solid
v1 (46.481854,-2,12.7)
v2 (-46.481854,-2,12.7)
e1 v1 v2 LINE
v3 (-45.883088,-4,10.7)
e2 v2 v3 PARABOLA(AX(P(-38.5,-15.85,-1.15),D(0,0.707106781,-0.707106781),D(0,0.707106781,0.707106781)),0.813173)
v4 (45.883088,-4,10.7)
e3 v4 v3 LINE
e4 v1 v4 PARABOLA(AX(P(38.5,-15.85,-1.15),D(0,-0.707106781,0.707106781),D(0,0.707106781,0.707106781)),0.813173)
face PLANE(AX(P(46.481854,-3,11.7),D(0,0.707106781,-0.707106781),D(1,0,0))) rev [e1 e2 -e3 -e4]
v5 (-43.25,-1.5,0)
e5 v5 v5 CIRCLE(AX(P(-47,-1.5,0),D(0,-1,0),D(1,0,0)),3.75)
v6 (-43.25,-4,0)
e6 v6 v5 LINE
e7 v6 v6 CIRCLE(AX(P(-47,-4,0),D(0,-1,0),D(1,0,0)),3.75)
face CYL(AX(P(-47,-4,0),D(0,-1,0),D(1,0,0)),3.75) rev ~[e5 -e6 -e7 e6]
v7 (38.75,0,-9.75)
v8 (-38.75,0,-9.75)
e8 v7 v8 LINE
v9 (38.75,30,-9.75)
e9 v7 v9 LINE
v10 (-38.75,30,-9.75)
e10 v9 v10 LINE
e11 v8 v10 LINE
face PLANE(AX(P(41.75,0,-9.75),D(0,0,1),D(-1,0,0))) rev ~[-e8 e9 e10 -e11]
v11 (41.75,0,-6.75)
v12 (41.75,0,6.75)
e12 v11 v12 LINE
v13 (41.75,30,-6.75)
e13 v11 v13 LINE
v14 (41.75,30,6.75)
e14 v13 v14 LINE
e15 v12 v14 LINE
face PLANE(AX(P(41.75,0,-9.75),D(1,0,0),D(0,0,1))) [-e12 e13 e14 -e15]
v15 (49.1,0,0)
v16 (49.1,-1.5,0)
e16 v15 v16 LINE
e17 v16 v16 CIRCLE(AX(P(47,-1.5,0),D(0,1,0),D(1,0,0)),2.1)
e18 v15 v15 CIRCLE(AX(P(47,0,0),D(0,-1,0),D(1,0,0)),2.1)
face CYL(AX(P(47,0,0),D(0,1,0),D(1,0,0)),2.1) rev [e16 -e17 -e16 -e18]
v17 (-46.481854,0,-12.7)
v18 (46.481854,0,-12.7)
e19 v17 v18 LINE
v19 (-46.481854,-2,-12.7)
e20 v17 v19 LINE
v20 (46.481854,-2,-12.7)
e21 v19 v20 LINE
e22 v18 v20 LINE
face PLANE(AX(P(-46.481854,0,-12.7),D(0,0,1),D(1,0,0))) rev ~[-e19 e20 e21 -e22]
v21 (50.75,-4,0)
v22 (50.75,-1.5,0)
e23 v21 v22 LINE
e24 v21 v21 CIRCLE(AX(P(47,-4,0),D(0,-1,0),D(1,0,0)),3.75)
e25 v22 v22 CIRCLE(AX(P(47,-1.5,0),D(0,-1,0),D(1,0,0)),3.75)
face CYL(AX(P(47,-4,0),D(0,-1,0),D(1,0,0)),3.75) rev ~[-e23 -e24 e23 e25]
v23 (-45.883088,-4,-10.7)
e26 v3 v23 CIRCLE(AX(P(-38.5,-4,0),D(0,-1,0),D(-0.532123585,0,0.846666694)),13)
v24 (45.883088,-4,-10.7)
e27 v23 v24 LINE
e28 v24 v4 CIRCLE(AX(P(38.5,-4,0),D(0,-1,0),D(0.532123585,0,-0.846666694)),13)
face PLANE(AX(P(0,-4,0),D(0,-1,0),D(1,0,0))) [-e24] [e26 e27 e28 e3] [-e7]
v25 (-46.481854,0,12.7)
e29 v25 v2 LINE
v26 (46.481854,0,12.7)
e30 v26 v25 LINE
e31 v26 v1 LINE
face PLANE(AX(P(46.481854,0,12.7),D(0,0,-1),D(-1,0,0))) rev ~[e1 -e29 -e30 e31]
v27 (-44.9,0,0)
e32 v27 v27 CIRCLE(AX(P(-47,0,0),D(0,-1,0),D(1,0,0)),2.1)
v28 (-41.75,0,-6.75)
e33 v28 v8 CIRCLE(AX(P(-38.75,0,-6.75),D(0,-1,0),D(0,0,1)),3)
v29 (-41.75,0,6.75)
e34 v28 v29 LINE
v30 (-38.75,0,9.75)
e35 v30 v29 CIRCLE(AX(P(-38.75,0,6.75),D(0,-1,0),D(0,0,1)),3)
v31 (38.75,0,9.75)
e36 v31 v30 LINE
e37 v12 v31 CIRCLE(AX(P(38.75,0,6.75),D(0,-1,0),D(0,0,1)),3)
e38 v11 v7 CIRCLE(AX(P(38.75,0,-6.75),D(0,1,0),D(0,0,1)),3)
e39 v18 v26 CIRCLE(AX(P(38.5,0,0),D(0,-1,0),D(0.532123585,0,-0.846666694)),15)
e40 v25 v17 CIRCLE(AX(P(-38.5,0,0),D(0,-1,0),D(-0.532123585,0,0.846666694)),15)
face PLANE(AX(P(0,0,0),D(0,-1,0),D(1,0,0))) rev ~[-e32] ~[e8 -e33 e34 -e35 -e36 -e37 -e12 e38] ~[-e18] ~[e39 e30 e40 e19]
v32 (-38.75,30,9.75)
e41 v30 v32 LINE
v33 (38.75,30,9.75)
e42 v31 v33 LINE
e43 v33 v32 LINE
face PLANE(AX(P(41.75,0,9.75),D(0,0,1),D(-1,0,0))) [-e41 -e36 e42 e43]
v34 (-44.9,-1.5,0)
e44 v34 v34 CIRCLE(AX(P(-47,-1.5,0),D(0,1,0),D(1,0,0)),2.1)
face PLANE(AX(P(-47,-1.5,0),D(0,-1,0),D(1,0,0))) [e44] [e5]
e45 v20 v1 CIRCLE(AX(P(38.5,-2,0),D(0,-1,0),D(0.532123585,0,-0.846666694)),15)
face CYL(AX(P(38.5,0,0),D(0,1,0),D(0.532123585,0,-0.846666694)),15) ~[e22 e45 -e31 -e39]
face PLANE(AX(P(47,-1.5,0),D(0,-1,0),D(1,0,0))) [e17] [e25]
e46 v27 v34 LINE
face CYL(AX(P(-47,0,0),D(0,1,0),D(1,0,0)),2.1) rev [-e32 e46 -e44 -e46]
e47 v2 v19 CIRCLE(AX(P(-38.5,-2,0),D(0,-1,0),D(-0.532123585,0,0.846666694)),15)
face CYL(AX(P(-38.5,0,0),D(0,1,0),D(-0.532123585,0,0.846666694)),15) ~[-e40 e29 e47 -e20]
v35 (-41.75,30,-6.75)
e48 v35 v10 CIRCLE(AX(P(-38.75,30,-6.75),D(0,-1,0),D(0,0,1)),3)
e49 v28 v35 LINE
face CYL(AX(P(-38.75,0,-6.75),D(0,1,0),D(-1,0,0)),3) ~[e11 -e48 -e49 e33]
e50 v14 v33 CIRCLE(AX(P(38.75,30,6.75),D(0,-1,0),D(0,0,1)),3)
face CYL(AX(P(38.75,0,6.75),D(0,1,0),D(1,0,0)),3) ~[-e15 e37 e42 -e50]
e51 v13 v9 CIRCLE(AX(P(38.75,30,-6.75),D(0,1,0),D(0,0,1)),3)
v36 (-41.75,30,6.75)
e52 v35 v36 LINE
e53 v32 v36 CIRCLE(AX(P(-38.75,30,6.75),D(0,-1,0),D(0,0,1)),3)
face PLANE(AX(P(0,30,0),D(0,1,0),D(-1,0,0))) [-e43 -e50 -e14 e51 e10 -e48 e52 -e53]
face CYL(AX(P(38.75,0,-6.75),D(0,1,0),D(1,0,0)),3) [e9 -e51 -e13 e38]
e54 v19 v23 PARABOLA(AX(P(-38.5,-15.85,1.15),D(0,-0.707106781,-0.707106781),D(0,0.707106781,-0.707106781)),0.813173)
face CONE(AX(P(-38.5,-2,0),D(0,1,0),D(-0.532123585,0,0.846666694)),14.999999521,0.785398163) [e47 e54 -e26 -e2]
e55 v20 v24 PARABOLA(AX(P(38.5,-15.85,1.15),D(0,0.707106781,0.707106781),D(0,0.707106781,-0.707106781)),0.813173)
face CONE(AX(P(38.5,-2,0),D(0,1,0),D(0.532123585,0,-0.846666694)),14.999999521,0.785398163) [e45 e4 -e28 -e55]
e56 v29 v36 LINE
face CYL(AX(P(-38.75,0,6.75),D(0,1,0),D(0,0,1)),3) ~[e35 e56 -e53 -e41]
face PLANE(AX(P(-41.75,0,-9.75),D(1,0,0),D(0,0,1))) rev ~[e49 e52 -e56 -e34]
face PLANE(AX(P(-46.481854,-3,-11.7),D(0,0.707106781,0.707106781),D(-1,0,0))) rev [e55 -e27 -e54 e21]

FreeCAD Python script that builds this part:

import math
import FreeCAD as App
import Part
import Sketcher
Q = App.Units.Quantity


def edges_at(feature, points):
    """Names of the edges that pass closest to the given points."""
    edges = feature.Shape.Edges
    near = lambda p: min(range(len(edges)), key=lambda i: edges[i].distToShape(Part.Vertex(*p))[0])
    return sorted({f"Edge{near(p) + 1}" for p in points})


def add_polygon(sketch, points):
    """Adds a closed chain of lines whose ends are joined by coincident constraints."""
    first, n = sketch.GeometryCount, len(points)
    for a, b in zip(points, points[1:] + points[:1]):
        sketch.addGeometry(Part.LineSegment(App.Vector(*a, 0), App.Vector(*b, 0)), False)
    for i in range(n):
        sketch.addConstraint(Sketcher.Constraint("Coincident", first + i, 2, first + (i + 1) % n, 1))

doc = App.newDocument("Part")
params = doc.addObject("Spreadsheet::Sheet", "Params")
for row, (alias, value) in enumerate([
    ("sketch1_radius", "15 mm"),
    ("sketch1_diameter", "4.2 mm"),
    ("pad1_length", "4 mm"),
    ("chamfer_size", "2 mm"),
    ("sketch2_diameter", "7.5 mm"),
    ("pocket1_length", "2.5 mm"),
    ("sketch3_width", "83.5 mm"),
    ("sketch3_height", "19.5 mm"),
    ("pad2_length", "30 mm"),
    ("fillet_radius", "3 mm"),
], start=1):
    params.set(f"A{row}", alias)
    params.set(f"B{row}", "=" + value)
    params.setAlias(f"B{row}", alias)

body = doc.addObject("PartDesign::Body", "Body")

# Sketch on XZ plane
sketch1 = body.newObject("Sketcher::SketchObject", "Sketch")
sketch1.AttachmentSupport = (doc.getObject("XZ_Plane"), [""])
sketch1.MapMode = "FlatFace"
sketch1.addGeometry([
    Part.ArcOfCircle(Part.Circle(App.Vector(-38.5, 0, 0), App.Vector(0, 0, 1), 15), math.radians(122.14905), math.radians(237.85095)),  # 0
    Part.LineSegment(App.Vector(-46.481854, -12.7, 0), App.Vector(46.481854, -12.7, 0)),  # 1
    Part.ArcOfCircle(Part.Circle(App.Vector(38.5, 0, 0), App.Vector(0, 0, 1), 15), math.radians(-57.85095), math.radians(57.85095)),  # 2
    Part.LineSegment(App.Vector(46.481854, 12.7, 0), App.Vector(-46.481854, 12.7, 0)),  # 3
    Part.Circle(App.Vector(-47, 0, 0), App.Vector(0, 0, 1), 2.1),  # 4
    Part.Circle(App.Vector(47, 0, 0), App.Vector(0, 0, 1), 2.1),  # 5
], False)
sketch1.addConstraint([
    Sketcher.Constraint("Coincident", 0, 2, 1, 1),
    Sketcher.Constraint("Coincident", 1, 2, 2, 1),
    Sketcher.Constraint("Coincident", 2, 2, 3, 1),
    Sketcher.Constraint("Coincident", 3, 2, 0, 1),
    Sketcher.Constraint("Horizontal", 1),
    Sketcher.Constraint("Horizontal", 3),
    Sketcher.Constraint("Equal", 0, 2),
    Sketcher.Constraint("Equal", 4, 5),
    Sketcher.Constraint("Symmetric", 0, 3, 2, 3, -1, 1),
    Sketcher.Constraint("Symmetric", 4, 3, 5, 3, -1, 1),
    Sketcher.Constraint("Symmetric", 1, 2, 2, 2, -1),
    Sketcher.Constraint("PointOnObject", 4, 3, -1),
    Sketcher.Constraint("Radius", 0, Q("15 mm")),
    Sketcher.Constraint("Diameter", 4, Q("4.2 mm")),
    Sketcher.Constraint("DistanceX", 4, 3, -1, 1, Q("47 mm")),
    Sketcher.Constraint("DistanceX", 0, 3, 2, 3, Q("77.000001 mm")),
    Sketcher.Constraint("DistanceY", 0, 2, -1, 1, Q("12.7 mm")),
])
sketch1.setExpression("Constraints[12]", "Params.sketch1_radius")
sketch1.setExpression("Constraints[13]", "Params.sketch1_diameter")
pad1 = body.newObject("PartDesign::Pad", "Pad")
pad1.Profile = sketch1
pad1.setExpression("Length", "Params.pad1_length")
doc.recompute()

chamfer = body.newObject("PartDesign::Chamfer", "Chamfer")
chamfer.Base = (pad1, edges_at(pad1, [
    (0, -4, 12.7),
    (53.5, -4, 0),
    (0, -4, -12.7),
    (-53.5, -4, 0),
]))
chamfer.setExpression("Size", "Params.chamfer_size")

# Sketch on XZ plane
sketch2 = body.newObject("Sketcher::SketchObject", "Sketch001")
sketch2.AttachmentSupport = (doc.getObject("XZ_Plane"), [""])
sketch2.MapMode = "FlatFace"
sketch2.AttachmentOffset = App.Placement(App.Vector(0, 0, 4), App.Rotation())
sketch2.addGeometry([
    Part.Circle(App.Vector(-47, 0, 0), App.Vector(0, 0, 1), 3.75),
    Part.Circle(App.Vector(47, 0, 0), App.Vector(0, 0, 1), 3.75),
], False)
sketch2.addConstraint([
    Sketcher.Constraint("Equal", 0, 1),
    Sketcher.Constraint("Symmetric", 0, 3, 1, 3, -1, 1),
    Sketcher.Constraint("PointOnObject", 0, 3, -1),
    Sketcher.Constraint("Diameter", 0, Q("7.5 mm")),
    Sketcher.Constraint("DistanceX", 0, 3, -1, 1, Q("47 mm")),
])
sketch2.setExpression("Constraints[3]", "Params.sketch2_diameter")
pocket1 = body.newObject("PartDesign::Pocket", "Pocket")
pocket1.Profile = sketch2
pocket1.setExpression("Length", "Params.pocket1_length")

# Sketch on XZ plane
sketch3 = body.newObject("Sketcher::SketchObject", "Sketch002")
sketch3.AttachmentSupport = (doc.getObject("XZ_Plane"), [""])
sketch3.MapMode = "FlatFace"
add_polygon(sketch3, [(41.75, 9.75), (41.75, -9.75), (-41.75, -9.75), (-41.75, 9.75)])  # lines 0-3
sketch3.addConstraint([
    Sketcher.Constraint("Vertical", 0),
    Sketcher.Constraint("Horizontal", 1),
    Sketcher.Constraint("Vertical", 2),
    Sketcher.Constraint("Horizontal", 3),
    Sketcher.Constraint("Symmetric", 0, 2, 2, 2, -1, 1),
    Sketcher.Constraint("DistanceX", 1, 2, 1, 1, Q("83.5 mm")),
    Sketcher.Constraint("DistanceY", 0, 2, 0, 1, Q("19.5 mm")),
])
sketch3.setExpression("Constraints[9]", "Params.sketch3_width")
sketch3.setExpression("Constraints[10]", "Params.sketch3_height")
pad2 = body.newObject("PartDesign::Pad", "Pad001")
pad2.Profile = sketch3
pad2.setExpression("Length", "Params.pad2_length")
pad2.Reversed = True
doc.recompute()

fillet = body.newObject("PartDesign::Fillet", "Fillet")
fillet.Base = (pad2, edges_at(pad2, [
    (41.75, 15, 9.75),
    (-41.75, 15, 9.75),
    (-41.75, 15, -9.75),
    (41.75, 15, -9.75),
]))
fillet.setExpression("Radius", "Params.fillet_radius")

doc.recompute()
